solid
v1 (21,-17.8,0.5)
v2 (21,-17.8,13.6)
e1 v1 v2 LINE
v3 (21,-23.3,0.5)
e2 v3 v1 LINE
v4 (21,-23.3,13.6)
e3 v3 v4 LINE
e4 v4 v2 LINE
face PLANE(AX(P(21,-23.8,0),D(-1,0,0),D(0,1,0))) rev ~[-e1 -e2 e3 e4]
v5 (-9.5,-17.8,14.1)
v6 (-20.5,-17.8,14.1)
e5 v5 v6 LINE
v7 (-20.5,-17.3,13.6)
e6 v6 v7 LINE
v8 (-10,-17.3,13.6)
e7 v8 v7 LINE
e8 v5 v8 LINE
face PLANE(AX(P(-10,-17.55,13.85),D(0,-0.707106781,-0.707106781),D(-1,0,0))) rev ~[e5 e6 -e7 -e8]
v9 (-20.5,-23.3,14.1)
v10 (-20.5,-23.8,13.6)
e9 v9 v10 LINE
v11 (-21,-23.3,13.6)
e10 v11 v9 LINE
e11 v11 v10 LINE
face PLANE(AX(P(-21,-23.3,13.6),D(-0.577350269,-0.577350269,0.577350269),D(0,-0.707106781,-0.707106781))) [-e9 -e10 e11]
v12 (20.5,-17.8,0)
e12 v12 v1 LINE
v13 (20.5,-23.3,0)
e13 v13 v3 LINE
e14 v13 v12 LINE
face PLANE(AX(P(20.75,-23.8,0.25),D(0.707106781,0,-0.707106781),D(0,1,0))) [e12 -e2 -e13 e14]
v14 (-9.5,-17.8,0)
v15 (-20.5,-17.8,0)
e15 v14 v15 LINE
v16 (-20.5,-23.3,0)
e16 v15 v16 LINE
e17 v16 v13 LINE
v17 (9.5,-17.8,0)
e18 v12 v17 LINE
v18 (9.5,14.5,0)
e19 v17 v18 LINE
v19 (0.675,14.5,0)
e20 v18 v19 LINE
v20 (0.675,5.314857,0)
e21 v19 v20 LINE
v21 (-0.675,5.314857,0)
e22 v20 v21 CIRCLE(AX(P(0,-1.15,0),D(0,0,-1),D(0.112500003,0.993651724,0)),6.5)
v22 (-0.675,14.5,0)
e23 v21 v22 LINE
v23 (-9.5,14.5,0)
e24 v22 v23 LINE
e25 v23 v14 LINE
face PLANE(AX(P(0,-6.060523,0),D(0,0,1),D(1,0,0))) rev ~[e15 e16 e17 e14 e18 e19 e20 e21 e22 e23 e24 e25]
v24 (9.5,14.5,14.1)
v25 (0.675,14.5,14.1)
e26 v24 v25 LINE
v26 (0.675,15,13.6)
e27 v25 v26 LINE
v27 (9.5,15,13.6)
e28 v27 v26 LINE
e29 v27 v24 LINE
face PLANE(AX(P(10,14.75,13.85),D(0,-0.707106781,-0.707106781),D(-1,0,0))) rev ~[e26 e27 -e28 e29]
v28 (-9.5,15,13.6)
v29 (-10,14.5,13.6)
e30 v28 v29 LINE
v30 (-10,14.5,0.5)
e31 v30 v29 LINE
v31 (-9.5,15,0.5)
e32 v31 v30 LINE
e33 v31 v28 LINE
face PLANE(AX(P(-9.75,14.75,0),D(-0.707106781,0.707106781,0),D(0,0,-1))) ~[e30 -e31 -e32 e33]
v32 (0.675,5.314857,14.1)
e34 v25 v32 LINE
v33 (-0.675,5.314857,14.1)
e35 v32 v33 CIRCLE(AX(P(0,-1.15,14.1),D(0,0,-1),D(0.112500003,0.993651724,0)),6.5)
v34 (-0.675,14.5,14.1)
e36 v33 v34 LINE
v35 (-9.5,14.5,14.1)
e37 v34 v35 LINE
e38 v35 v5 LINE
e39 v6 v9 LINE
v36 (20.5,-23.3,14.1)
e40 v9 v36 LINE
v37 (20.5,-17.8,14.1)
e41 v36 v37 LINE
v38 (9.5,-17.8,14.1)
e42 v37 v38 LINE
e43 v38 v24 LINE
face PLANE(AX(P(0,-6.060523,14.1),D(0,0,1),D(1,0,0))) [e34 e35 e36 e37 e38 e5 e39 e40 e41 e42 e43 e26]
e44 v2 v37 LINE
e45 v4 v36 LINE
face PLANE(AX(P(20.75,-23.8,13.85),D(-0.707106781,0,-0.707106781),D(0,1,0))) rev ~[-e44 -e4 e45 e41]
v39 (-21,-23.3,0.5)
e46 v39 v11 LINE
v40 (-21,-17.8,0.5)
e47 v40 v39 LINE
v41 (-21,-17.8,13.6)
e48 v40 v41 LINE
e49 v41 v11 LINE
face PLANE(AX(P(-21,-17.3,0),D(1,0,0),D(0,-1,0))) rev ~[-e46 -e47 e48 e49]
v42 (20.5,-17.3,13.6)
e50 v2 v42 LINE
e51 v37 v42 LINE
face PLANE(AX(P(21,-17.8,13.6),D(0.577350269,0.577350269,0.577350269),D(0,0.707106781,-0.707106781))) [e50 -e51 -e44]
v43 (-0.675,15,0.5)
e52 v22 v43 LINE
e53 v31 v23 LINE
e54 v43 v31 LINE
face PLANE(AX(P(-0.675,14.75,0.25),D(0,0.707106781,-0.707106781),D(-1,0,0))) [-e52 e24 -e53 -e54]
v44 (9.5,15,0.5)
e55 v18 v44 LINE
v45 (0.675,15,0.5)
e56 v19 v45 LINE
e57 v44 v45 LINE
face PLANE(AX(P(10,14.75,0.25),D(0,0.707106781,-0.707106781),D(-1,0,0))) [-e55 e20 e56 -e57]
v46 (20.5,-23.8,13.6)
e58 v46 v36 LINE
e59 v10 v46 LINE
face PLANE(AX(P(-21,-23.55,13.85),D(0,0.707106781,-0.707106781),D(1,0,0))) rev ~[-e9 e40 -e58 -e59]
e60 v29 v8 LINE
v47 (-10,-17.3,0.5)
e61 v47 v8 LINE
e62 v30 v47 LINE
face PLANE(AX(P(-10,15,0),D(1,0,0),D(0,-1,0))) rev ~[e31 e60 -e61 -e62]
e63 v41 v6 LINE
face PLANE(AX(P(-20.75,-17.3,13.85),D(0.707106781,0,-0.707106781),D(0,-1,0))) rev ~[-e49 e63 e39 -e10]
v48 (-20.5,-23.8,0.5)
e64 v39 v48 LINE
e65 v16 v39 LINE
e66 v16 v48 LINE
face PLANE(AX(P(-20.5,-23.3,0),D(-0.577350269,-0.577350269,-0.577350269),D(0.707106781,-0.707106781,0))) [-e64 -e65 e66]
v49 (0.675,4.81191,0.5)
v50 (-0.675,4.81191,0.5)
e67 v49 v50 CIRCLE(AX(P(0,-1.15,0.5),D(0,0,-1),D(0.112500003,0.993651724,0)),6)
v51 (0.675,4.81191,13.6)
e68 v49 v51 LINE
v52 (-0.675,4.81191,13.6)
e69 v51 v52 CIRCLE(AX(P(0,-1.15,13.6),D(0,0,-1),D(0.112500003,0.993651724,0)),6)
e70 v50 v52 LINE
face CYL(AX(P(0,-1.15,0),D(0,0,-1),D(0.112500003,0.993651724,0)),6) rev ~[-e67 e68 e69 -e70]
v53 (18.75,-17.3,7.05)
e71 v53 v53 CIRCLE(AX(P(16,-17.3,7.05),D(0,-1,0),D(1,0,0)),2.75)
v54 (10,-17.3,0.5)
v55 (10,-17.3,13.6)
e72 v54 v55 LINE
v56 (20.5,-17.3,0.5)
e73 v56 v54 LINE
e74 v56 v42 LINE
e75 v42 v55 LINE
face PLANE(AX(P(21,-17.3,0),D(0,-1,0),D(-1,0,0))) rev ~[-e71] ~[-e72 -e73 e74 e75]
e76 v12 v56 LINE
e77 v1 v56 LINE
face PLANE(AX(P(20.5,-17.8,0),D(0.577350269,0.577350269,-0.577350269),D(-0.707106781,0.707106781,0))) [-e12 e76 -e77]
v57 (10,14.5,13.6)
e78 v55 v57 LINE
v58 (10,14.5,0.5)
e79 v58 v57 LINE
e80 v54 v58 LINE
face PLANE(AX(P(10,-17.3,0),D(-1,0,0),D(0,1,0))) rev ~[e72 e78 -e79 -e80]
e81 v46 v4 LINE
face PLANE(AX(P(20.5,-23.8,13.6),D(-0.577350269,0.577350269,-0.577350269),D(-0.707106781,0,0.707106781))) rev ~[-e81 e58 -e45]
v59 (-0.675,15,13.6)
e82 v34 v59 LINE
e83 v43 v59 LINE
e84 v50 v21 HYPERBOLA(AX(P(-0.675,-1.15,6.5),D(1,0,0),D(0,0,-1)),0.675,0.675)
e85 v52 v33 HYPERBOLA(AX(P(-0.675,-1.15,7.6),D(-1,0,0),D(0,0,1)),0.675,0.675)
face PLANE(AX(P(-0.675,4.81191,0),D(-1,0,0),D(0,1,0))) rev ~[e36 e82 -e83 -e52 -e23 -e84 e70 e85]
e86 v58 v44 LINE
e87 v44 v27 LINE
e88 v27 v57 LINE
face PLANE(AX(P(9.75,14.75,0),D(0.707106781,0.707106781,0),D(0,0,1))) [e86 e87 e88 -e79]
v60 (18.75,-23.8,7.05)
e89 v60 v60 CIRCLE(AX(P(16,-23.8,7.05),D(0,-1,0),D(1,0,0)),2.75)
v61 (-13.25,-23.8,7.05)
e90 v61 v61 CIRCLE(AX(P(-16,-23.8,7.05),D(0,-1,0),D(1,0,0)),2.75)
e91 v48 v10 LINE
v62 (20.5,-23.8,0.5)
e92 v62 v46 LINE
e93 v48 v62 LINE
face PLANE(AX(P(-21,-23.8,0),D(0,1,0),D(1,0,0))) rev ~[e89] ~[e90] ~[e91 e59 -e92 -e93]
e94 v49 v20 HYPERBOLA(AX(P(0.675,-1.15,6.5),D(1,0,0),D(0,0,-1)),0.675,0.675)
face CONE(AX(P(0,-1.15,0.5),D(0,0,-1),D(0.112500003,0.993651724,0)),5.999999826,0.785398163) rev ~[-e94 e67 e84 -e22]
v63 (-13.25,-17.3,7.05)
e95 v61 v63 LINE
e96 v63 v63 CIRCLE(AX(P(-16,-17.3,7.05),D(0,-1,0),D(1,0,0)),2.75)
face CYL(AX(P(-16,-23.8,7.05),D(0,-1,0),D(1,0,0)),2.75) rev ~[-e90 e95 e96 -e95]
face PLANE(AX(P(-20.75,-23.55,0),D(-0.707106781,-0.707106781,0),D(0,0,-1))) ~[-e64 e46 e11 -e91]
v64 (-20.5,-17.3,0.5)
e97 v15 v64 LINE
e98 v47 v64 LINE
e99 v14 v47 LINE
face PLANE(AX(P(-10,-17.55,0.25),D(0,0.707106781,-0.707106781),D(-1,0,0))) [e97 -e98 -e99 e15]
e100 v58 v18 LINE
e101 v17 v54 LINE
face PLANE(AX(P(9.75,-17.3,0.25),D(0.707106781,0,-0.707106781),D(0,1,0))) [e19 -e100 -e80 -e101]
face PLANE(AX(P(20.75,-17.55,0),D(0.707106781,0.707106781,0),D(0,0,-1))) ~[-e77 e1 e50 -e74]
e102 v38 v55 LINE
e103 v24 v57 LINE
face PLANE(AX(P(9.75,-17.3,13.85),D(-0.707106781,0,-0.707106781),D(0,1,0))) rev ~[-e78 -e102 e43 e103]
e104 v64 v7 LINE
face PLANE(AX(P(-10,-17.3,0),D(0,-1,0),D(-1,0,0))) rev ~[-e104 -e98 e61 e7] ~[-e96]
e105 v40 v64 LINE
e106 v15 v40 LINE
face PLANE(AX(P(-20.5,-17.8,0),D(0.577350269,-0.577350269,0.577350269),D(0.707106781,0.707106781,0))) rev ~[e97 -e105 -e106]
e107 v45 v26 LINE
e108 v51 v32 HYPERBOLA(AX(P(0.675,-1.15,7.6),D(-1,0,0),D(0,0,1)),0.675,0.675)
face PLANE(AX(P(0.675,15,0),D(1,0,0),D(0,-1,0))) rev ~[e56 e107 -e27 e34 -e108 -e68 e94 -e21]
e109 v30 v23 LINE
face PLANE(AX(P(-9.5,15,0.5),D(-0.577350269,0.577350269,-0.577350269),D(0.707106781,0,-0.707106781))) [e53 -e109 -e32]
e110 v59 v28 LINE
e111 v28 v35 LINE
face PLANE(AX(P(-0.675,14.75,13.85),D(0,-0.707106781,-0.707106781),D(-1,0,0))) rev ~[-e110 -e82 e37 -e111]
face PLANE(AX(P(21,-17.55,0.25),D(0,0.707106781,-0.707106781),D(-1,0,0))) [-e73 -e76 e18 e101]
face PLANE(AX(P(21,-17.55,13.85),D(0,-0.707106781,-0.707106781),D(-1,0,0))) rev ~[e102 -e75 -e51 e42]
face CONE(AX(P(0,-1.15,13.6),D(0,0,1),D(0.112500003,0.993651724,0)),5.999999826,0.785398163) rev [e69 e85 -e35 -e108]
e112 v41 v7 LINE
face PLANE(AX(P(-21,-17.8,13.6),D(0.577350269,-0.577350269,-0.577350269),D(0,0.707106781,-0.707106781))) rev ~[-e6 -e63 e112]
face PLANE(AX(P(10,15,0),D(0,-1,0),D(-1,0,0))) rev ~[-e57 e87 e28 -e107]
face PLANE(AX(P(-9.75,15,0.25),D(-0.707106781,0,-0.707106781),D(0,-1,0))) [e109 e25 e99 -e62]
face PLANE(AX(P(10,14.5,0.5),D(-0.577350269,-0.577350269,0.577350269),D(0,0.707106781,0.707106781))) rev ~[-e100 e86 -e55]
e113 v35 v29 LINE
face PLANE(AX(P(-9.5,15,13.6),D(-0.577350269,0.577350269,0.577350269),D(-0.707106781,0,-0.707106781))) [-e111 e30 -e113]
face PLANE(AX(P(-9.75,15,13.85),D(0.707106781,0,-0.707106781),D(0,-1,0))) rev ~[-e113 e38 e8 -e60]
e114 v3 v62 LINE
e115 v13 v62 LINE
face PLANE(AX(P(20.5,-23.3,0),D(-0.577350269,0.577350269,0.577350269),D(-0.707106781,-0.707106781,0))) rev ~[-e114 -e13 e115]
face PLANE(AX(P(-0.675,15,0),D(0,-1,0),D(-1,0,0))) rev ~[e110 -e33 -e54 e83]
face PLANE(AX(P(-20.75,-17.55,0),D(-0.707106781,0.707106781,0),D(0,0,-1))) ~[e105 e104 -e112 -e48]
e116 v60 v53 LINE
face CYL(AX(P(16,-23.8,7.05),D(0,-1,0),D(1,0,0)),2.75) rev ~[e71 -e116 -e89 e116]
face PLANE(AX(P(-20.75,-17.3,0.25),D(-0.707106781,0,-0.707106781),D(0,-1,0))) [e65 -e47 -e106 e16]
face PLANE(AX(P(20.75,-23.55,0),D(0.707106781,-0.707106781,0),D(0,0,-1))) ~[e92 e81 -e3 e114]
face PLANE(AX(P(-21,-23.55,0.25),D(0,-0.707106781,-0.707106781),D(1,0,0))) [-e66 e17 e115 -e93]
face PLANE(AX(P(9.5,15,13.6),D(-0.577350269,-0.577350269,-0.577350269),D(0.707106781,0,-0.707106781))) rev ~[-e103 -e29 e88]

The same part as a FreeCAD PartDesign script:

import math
import FreeCAD as App
import Part
import Sketcher
from FreeCAD import Vector
Q = App.Units.Quantity


def edges_at(feature, points):
    """Names of the edges that pass closest to the given points."""
    edges = feature.Shape.Edges
    near = lambda p: min(range(len(edges)), key=lambda i: edges[i].distToShape(Part.Vertex(*p))[0])
    return sorted({f"Edge{near(p) + 1}" for p in points})

doc = App.newDocument("Part")
body = doc.addObject("PartDesign::Body", "Body")

# Sketch on XY plane
sketch1 = doc.addObject("Sketcher::SketchObject", "Sketch")
body.addObject(sketch1)
sketch1.AttachmentSupport = (doc.XY_Plane, [""])
sketch1.MapMode = "FlatFace"
sketch1.addGeometry([
    Part.ArcOfCircle(Part.Circle(Vector(0, -1.2, 0), Vector(0, 0, 1), 6), math.radians(96), math.radians(444)),  # 0
    Part.LineSegment(Vector(-0.7, 4.8, 0), Vector(-0.7, 15, 0)),  # 1
    Part.LineSegment(Vector(-0.7, 15, 0), Vector(-10, 15, 0)),  # 2
    Part.LineSegment(Vector(-10, 15, 0), Vector(-10, -17.3, 0)),  # 3
    Part.LineSegment(Vector(-10, -17.3, 0), Vector(-21, -17.3, 0)),  # 4
    Part.LineSegment(Vector(-21, -17.3, 0), Vector(-21, -23.8, 0)),  # 5
    Part.LineSegment(Vector(-21, -23.8, 0), Vector(21, -23.8, 0)),  # 6
    Part.LineSegment(Vector(21, -23.8, 0), Vector(21, -17.3, 0)),  # 7
    Part.LineSegment(Vector(21, -17.3, 0), Vector(10, -17.3, 0)),  # 8
    Part.LineSegment(Vector(10, -17.3, 0), Vector(10, 15, 0)),  # 9
    Part.LineSegment(Vector(10, 15, 0), Vector(0.7, 15, 0)),  # 10
    Part.LineSegment(Vector(0.7, 15, 0), Vector(0.7, 4.8, 0)),  # 11
], False)
sketch1.addConstraint([
    Sketcher.Constraint("Coincident", 0, 1, 1, 1),
    Sketcher.Constraint("Coincident", 1, 2, 2, 1),
    Sketcher.Constraint("Coincident", 2, 2, 3, 1),
    Sketcher.Constraint("Coincident", 3, 2, 4, 1),
    Sketcher.Constraint("Coincident", 4, 2, 5, 1),
    Sketcher.Constraint("Coincident", 5, 2, 6, 1),
    Sketcher.Constraint("Coincident", 6, 2, 7, 1),
    Sketcher.Constraint("Coincident", 7, 2, 8, 1),
    Sketcher.Constraint("Coincident", 8, 2, 9, 1),
    Sketcher.Constraint("Coincident", 9, 2, 10, 1),
    Sketcher.Constraint("Coincident", 10, 2, 11, 1),
    Sketcher.Constraint("Coincident", 11, 2, 0, 2),
    Sketcher.Constraint("Vertical", 1),
    Sketcher.Constraint("Horizontal", 2),
    Sketcher.Constraint("Vertical", 3),
    Sketcher.Constraint("Horizontal", 4),
    Sketcher.Constraint("Vertical", 5),
    Sketcher.Constraint("Horizontal", 6),
    Sketcher.Constraint("Vertical", 7),
    Sketcher.Constraint("Horizontal", 8),
    Sketcher.Constraint("Vertical", 9),
    Sketcher.Constraint("Horizontal", 10),
    Sketcher.Constraint("Vertical", 11),
    Sketcher.Constraint("Symmetric", 4, 2, 7, 2, -2),
    Sketcher.Constraint("Symmetric", 2, 2, 9, 2, -2),
    Sketcher.Constraint("Symmetric", 0, 1, 11, 2, -2),
    Sketcher.Constraint("Radius", 0, Q("6 mm")),
    Sketcher.Constraint("DistanceX", 4, 2, 4, 1, Q("11 mm")),
    Sketcher.Constraint("DistanceX", 6, 1, 6, 2, Q("42 mm")),
    Sketcher.Constraint("DistanceY", 3, 2, 3, 1, Q("32.3 mm")),
    Sketcher.Constraint("DistanceY", 5, 2, 5, 1, Q("6.5 mm")),
    Sketcher.Constraint("DistanceY", -1, 1, 1, 2, Q("15 mm")),
    Sketcher.Constraint("DistanceX", 2, 2, 2, 1, Q("9.325 mm")),
    Sketcher.Constraint("DistanceY", 0, 3, -1, 1, Q("1.15 mm")),
])
pad1 = doc.addObject("PartDesign::Pad", "Pad")
body.addObject(pad1)
pad1.Profile = sketch1
pad1.Length = 14.1

# Sketch on XZ plane
sketch2 = doc.addObject("Sketcher::SketchObject", "Sketch001")
body.addObject(sketch2)
sketch2.AttachmentSupport = (doc.XZ_Plane, [""])
sketch2.MapMode = "FlatFace"
sketch2.AttachmentOffset = App.Placement(Vector(0, 0, 23.8), App.Rotation())
sketch2.addGeometry([
    Part.Circle(Vector(16, 7, 0), Vector(0, 0, 1), 2.8),
    Part.Circle(Vector(-16, 7, 0), Vector(0, 0, 1), 2.8),
], False)
sketch2.addConstraint([
    Sketcher.Constraint("Equal", 0, 1),
    Sketcher.Constraint("Symmetric", 0, 3, 1, 3, -2),
    Sketcher.Constraint("Diameter", 0, Q("5.5 mm")),
    Sketcher.Constraint("DistanceX", -1, 1, 0, 3, Q("16 mm")),
    Sketcher.Constraint("DistanceY", -1, 1, 0, 3, Q("7.05 mm")),
])
pocket1 = doc.addObject("PartDesign::Pocket", "Pocket")
body.addObject(pocket1)
pocket1.Profile = sketch2
pocket1.Type = "ThroughAll"
doc.recompute()

chamfer = doc.addObject("PartDesign::Chamfer", "Chamfer")
body.addObject(chamfer)
chamfer.Base = (pocket1, edges_at(pocket1, [
    (10, -1.15, 14.1),
    (15.5, -17.3, 14.1),
    (21, -20.55, 14.1),
    (21, -17.3, 7.05),
    (21, -23.8, 7.05),
    (21, -20.55, 0),
    (0, -23.8, 14.1),
    (-15.5, -17.3, 14.1),
    (-21, -20.55, 14.1),
    (-10, -1.15, 14.1),
    (-5.338, 15, 14.1),
    (5.338, 15, 14.1),
    (0, -7.15, 14.1),
    (-21, -17.3, 7.05),
    (-21, -23.8, 7.05),
    (-21, -20.55, 0),
    (-15.5, -17.3, 0),
    (-10, -1.15, 0),
    (0, -23.8, 0),
    (0, -7.15, 0),
    (-10, 15, 7.05),
    (-5.338, 15, 0),
    (5.338, 15, 0),
    (10, -1.15, 0),
    (15.5, -17.3, 0),
    (10, 15, 7.05),
]))
chamfer.Size = 0.5

doc.recompute()
